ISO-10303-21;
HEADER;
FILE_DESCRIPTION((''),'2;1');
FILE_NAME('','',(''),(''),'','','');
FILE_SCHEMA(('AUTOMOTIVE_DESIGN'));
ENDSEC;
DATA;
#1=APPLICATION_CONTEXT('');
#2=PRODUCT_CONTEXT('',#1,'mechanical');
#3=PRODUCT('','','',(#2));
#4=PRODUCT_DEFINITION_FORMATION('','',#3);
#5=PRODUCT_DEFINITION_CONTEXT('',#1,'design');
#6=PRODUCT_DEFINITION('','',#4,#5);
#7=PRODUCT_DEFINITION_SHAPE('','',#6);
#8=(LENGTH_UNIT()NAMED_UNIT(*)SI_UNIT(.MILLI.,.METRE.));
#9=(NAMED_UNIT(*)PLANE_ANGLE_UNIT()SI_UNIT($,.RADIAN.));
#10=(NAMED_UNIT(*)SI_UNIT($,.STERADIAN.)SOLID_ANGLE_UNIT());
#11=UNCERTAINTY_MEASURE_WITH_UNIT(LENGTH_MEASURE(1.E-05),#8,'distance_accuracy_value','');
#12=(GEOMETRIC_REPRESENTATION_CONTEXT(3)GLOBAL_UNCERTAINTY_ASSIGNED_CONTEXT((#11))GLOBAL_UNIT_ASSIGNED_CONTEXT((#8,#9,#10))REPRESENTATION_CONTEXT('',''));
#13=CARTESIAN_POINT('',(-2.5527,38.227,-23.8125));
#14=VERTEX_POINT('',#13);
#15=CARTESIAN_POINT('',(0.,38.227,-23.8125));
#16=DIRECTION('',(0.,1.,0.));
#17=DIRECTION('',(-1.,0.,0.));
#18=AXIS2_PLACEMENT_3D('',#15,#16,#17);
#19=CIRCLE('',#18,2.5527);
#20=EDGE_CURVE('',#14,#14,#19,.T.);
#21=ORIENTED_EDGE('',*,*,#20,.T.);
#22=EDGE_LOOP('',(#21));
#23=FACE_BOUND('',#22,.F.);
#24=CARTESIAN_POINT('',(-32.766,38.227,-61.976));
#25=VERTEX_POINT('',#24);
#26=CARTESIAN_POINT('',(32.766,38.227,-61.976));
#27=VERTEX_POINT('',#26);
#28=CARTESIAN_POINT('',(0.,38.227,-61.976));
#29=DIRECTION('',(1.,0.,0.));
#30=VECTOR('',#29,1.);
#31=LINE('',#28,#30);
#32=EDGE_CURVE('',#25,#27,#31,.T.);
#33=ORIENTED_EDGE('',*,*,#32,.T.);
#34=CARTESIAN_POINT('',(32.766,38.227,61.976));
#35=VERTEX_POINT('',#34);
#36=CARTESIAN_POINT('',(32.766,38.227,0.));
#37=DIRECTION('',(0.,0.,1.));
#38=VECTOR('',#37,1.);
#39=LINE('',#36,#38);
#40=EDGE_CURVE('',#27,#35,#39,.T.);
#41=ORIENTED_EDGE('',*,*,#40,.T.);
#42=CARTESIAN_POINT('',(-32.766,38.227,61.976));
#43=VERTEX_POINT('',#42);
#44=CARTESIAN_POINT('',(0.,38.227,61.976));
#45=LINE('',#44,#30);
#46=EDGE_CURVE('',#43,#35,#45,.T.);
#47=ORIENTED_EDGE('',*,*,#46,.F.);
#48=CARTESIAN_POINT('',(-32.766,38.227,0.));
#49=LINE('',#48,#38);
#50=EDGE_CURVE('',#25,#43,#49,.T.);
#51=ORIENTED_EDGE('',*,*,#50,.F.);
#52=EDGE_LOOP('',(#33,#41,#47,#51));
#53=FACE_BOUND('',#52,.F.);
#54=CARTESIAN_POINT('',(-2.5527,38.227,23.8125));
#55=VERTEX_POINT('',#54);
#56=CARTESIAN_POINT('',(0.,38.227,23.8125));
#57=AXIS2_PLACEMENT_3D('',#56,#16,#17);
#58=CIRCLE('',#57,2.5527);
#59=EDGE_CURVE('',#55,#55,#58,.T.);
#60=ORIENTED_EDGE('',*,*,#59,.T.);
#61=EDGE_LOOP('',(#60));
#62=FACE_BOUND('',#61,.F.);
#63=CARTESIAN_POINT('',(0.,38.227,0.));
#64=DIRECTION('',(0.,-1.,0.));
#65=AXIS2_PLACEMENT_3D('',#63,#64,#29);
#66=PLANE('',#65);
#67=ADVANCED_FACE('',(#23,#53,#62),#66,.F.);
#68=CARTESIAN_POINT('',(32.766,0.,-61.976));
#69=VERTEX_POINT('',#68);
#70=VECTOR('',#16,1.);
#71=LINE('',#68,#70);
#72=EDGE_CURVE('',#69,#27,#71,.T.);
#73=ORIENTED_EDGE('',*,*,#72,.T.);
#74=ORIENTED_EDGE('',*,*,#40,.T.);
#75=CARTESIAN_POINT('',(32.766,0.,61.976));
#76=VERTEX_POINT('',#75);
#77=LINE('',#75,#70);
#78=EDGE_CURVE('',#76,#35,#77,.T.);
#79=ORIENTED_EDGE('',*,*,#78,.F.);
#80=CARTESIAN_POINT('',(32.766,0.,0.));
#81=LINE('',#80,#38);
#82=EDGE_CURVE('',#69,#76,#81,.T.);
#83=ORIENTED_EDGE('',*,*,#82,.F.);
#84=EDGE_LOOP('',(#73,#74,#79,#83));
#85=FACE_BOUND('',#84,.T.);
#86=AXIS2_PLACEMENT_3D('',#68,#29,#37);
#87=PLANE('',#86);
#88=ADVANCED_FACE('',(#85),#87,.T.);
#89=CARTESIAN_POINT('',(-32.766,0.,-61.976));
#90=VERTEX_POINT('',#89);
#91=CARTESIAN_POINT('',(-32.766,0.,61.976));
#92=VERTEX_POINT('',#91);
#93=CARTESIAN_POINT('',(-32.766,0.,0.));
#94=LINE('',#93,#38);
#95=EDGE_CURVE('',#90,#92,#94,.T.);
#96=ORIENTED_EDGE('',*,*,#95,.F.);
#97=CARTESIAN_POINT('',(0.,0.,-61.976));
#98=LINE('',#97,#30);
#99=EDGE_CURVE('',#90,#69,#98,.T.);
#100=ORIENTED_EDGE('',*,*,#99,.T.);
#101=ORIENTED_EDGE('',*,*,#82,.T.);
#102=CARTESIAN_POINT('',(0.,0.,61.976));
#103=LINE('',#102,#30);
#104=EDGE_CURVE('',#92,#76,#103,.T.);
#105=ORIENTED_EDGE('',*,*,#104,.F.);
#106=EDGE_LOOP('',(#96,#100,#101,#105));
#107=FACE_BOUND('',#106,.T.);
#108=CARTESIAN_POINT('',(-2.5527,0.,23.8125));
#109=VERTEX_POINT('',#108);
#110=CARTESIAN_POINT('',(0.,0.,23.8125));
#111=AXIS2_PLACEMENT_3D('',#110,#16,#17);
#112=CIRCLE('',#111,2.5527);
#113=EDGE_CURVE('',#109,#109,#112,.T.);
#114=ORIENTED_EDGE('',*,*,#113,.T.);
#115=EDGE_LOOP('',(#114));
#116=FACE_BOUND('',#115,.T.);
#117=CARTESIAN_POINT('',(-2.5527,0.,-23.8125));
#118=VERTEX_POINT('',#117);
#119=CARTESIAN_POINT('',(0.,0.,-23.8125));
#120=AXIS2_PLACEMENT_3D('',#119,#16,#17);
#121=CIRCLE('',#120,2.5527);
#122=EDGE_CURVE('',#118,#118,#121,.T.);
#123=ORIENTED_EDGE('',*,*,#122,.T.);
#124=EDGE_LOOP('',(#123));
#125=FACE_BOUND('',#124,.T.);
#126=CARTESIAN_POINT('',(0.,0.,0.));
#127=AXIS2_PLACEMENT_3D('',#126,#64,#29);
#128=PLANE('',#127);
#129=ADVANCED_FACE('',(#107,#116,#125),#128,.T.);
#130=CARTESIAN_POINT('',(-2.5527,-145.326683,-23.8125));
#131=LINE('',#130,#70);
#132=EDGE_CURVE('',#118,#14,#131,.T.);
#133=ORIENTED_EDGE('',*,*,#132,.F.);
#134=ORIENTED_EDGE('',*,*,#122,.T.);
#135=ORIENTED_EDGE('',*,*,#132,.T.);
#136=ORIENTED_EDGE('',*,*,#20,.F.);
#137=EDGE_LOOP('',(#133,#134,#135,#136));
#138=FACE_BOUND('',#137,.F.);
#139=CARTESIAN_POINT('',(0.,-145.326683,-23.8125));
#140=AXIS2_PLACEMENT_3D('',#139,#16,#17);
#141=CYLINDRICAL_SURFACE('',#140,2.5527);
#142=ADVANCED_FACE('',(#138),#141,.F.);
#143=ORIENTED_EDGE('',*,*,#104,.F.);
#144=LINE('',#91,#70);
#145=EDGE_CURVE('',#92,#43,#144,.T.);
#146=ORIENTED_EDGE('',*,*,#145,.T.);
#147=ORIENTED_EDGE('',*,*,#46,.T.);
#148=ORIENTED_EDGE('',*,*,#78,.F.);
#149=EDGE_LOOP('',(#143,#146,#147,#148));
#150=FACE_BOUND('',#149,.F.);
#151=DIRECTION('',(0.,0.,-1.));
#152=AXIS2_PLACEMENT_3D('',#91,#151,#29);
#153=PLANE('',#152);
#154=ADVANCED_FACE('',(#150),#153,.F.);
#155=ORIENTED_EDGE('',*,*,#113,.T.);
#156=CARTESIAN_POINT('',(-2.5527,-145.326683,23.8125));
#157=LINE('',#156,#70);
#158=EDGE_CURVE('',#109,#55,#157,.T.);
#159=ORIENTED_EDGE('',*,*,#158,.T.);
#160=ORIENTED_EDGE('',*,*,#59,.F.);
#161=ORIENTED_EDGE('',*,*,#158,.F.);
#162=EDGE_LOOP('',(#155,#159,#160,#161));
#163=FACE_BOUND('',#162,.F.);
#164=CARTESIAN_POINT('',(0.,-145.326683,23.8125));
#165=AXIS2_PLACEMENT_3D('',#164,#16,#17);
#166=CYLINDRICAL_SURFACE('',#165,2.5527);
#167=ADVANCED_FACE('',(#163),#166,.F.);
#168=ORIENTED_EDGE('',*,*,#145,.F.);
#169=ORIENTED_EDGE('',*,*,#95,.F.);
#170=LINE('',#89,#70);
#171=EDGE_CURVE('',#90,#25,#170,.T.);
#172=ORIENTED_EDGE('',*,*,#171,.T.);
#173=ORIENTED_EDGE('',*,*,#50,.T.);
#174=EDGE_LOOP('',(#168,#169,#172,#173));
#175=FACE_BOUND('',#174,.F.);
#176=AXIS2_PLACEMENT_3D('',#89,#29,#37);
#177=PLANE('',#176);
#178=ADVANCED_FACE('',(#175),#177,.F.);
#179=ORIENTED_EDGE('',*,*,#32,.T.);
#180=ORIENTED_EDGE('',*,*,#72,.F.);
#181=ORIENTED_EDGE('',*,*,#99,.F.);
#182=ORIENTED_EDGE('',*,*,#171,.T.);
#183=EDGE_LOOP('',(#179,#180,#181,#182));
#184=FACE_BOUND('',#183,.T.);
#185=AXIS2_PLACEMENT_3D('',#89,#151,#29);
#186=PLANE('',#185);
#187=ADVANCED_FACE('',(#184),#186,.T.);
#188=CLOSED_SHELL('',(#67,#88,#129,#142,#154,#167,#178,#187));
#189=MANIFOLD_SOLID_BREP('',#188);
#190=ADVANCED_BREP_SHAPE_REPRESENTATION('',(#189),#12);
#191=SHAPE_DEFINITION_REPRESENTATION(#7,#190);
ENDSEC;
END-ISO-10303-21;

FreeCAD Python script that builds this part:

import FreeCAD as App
import Part
import Sketcher

V = App.Vector
Q = App.Units.Quantity


def add_polygon(sketch, points):
    """Adds a closed chain of lines whose ends are joined by coincident constraints."""
    first, n = sketch.GeometryCount, len(points)
    for a, b in zip(points, points[1:] + points[:1]):
        sketch.addGeometry(Part.LineSegment(App.Vector(*a, 0), App.Vector(*b, 0)), False)
    for i in range(n):
        sketch.addConstraint(Sketcher.Constraint("Coincident", first + i, 2, first + (i + 1) % n, 1))

doc = App.newDocument("Part")
body = doc.addObject("PartDesign::Body", "Body")

sketch1 = body.newObject("Sketcher::SketchObject", "Sketch")
sketch1.AttachmentSupport = (doc.getObject("XZ_Plane"), [""])
sketch1.MapMode = "FlatFace"
add_polygon(sketch1, [(-33, 62), (-33, -62), (33, -62), (33, 62)])
sketch1.addConstraint(Sketcher.Constraint("Vertical", 0))
sketch1.addConstraint(Sketcher.Constraint("Horizontal", 1))
sketch1.addConstraint(Sketcher.Constraint("Vertical", 2))
sketch1.addConstraint(Sketcher.Constraint("Horizontal", 3))
sketch1.addConstraint(Sketcher.Constraint("Symmetric", 0, 2, 2, 2, -1, 1))
sketch1.addConstraint(Sketcher.Constraint("DistanceX", 1, 1, 1, 2, Q("2.58 in")))
sketch1.addConstraint(Sketcher.Constraint("DistanceY", 0, 2, 0, 1, Q("4.88 in")))
pad1 = body.newObject("PartDesign::Pad", "Pad")
pad1.Profile = sketch1
pad1.Length = Q("1.505 in")
pad1.Reversed = True

sketch2 = body.newObject("Sketcher::SketchObject", "Sketch001")
sketch2.AttachmentSupport = (doc.getObject("XZ_Plane"), [""])
sketch2.MapMode = "FlatFace"
sketch2.addGeometry(Part.Circle(V(0, 23.8, 0), V(0, 0, 1), 2.6), False)
sketch2.addGeometry(Part.Circle(V(0, -23.8, 0), V(0, 0, 1), 2.6), False)
sketch2.addConstraint(Sketcher.Constraint("Equal", 0, 1))
sketch2.addConstraint(Sketcher.Constraint("Symmetric", 0, 3, 1, 3, -1, 1))
sketch2.addConstraint(Sketcher.Constraint("PointOnObject", 0, 3, -2))
sketch2.addConstraint(Sketcher.Constraint("Diameter", 0, Q("0.201 in")))
sketch2.addConstraint(Sketcher.Constraint("DistanceY", -1, 1, 0, 3, Q("0.9375 in")))
doc.recompute()
hole = body.newObject("PartDesign::Hole", "Hole")
hole.Profile = sketch2
hole.ThreadType = "None"
hole.Diameter = Q("0.201 in")
hole.DepthType = "ThroughAll"

doc.recompute()
